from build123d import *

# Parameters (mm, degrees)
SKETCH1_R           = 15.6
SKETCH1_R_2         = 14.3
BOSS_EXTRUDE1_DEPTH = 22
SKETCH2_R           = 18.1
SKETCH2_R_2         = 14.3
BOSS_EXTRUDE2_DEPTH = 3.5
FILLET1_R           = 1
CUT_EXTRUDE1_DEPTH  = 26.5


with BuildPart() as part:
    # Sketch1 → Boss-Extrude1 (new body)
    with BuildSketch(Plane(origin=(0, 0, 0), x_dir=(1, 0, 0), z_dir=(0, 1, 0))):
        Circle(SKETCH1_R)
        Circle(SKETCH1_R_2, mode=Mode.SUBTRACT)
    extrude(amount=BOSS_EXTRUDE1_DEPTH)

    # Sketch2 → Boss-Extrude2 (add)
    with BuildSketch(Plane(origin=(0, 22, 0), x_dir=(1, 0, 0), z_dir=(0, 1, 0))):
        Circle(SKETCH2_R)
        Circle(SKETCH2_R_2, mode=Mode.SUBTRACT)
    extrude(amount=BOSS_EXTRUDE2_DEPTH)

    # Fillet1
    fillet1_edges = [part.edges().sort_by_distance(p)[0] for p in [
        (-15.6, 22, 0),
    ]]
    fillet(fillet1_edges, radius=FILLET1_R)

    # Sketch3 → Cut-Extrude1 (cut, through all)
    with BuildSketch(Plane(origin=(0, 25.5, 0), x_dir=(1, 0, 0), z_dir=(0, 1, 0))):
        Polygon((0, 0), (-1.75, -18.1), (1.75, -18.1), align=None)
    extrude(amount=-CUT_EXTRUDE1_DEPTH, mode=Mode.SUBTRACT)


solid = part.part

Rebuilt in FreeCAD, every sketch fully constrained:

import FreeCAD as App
import Part
import Sketcher


def edges_at(feature, points):
    """Names of the edges that pass closest to the given points."""
    edges = feature.Shape.Edges
    near = lambda p: min(range(len(edges)), key=lambda i: edges[i].distToShape(Part.Vertex(*p))[0])
    return sorted({f"Edge{near(p) + 1}" for p in points})

doc = App.newDocument("Part")
body = doc.addObject("PartDesign::Body", "Body")

# Sketch on XZ plane
sketch1 = doc.addObject("Sketcher::SketchObject", "Sketch")
body.addObject(sketch1)
sketch1.AttachmentSupport = (doc.XZ_Plane, [""])
sketch1.MapMode = "FlatFace"
sketch1.addGeometry(Part.Circle(App.Vector(0, 0, 0), App.Vector(0, 0, 1), 15.6), False)
sketch1.addGeometry(Part.Circle(App.Vector(0, 0, 0), App.Vector(0, 0, 1), 14.3), False)
sketch1.addConstraint(Sketcher.Constraint("Coincident", 0, 3, -1, 1))
sketch1.addConstraint(Sketcher.Constraint("Coincident", 1, 3, -1, 1))
sketch1.addConstraint(Sketcher.Constraint("Diameter", 0, 31.2))
sketch1.addConstraint(Sketcher.Constraint("Diameter", 1, 28.6))
pad1 = doc.addObject("PartDesign::Pad", "Pad")
body.addObject(pad1)
pad1.Profile = sketch1
pad1.Length = 22
pad1.Reversed = True

# Sketch on XZ plane
sketch2 = doc.addObject("Sketcher::SketchObject", "Sketch001")
body.addObject(sketch2)
sketch2.AttachmentSupport = (doc.XZ_Plane, [""])
sketch2.MapMode = "FlatFace"
sketch2.AttachmentOffset = App.Placement(App.Vector(0, 0, -22), App.Rotation())
sketch2.addGeometry(Part.Circle(App.Vector(0, 0, 0), App.Vector(0, 0, 1), 18.1), False)
sketch2.addGeometry(Part.Circle(App.Vector(0, 0, 0), App.Vector(0, 0, 1), 14.3), False)
sketch2.addConstraint(Sketcher.Constraint("Coincident", 0, 3, -1, 1))
sketch2.addConstraint(Sketcher.Constraint("Coincident", 1, 3, -1, 1))
sketch2.addConstraint(Sketcher.Constraint("Diameter", 0, 36.2))
sketch2.addConstraint(Sketcher.Constraint("Diameter", 1, 28.6))
pad2 = doc.addObject("PartDesign::Pad", "Pad001")
body.addObject(pad2)
pad2.Profile = sketch2
pad2.Length = 3.5
pad2.Reversed = True
doc.recompute()

fillet = doc.addObject("PartDesign::Fillet", "Fillet")
body.addObject(fillet)
fillet.Base = (pad2, edges_at(pad2, [(-15.6, 22, 0)]))
fillet.Radius = 1

# Sketch on XZ plane
sketch3 = doc.addObject("Sketcher::SketchObject", "Sketch002")
body.addObject(sketch3)
sketch3.AttachmentSupport = (doc.XZ_Plane, [""])
sketch3.MapMode = "FlatFace"
sketch3.AttachmentOffset = App.Placement(App.Vector(0, 0, -25.5), App.Rotation())
sketch3.addGeometry(Part.LineSegment(App.Vector(0, 0, 0), App.Vector(-1.75, 18.1, 0)), False)
sketch3.addGeometry(Part.LineSegment(App.Vector(-1.75, 18.1, 0), App.Vector(1.75, 18.1, 0)), False)
sketch3.addGeometry(Part.LineSegment(App.Vector(1.75, 18.1, 0), App.Vector(0, 0, 0)), False)
sketch3.addConstraint(Sketcher.Constraint("Coincident", 0, 2, 1, 1))
sketch3.addConstraint(Sketcher.Constraint("Coincident", 1, 2, 2, 1))
sketch3.addConstraint(Sketcher.Constraint("Coincident", 2, 2, 0, 1))
sketch3.addConstraint(Sketcher.Constraint("Horizontal", 1))
sketch3.addConstraint(Sketcher.Constraint("Coincident", 2, 2, -1, 1))
sketch3.addConstraint(Sketcher.Constraint("Equal", 0, 2))
sketch3.addConstraint(Sketcher.Constraint("DistanceX", 1, 1, 1, 2, 3.5))
sketch3.addConstraint(Sketcher.Constraint("DistanceY", -1, 1, 0, 2, 18.1))
pocket1 = doc.addObject("PartDesign::Pocket", "Pocket")
body.addObject(pocket1)
pocket1.Profile = sketch3
pocket1.Type = "ThroughAll"
pocket1.Reversed = True

doc.recompute()
